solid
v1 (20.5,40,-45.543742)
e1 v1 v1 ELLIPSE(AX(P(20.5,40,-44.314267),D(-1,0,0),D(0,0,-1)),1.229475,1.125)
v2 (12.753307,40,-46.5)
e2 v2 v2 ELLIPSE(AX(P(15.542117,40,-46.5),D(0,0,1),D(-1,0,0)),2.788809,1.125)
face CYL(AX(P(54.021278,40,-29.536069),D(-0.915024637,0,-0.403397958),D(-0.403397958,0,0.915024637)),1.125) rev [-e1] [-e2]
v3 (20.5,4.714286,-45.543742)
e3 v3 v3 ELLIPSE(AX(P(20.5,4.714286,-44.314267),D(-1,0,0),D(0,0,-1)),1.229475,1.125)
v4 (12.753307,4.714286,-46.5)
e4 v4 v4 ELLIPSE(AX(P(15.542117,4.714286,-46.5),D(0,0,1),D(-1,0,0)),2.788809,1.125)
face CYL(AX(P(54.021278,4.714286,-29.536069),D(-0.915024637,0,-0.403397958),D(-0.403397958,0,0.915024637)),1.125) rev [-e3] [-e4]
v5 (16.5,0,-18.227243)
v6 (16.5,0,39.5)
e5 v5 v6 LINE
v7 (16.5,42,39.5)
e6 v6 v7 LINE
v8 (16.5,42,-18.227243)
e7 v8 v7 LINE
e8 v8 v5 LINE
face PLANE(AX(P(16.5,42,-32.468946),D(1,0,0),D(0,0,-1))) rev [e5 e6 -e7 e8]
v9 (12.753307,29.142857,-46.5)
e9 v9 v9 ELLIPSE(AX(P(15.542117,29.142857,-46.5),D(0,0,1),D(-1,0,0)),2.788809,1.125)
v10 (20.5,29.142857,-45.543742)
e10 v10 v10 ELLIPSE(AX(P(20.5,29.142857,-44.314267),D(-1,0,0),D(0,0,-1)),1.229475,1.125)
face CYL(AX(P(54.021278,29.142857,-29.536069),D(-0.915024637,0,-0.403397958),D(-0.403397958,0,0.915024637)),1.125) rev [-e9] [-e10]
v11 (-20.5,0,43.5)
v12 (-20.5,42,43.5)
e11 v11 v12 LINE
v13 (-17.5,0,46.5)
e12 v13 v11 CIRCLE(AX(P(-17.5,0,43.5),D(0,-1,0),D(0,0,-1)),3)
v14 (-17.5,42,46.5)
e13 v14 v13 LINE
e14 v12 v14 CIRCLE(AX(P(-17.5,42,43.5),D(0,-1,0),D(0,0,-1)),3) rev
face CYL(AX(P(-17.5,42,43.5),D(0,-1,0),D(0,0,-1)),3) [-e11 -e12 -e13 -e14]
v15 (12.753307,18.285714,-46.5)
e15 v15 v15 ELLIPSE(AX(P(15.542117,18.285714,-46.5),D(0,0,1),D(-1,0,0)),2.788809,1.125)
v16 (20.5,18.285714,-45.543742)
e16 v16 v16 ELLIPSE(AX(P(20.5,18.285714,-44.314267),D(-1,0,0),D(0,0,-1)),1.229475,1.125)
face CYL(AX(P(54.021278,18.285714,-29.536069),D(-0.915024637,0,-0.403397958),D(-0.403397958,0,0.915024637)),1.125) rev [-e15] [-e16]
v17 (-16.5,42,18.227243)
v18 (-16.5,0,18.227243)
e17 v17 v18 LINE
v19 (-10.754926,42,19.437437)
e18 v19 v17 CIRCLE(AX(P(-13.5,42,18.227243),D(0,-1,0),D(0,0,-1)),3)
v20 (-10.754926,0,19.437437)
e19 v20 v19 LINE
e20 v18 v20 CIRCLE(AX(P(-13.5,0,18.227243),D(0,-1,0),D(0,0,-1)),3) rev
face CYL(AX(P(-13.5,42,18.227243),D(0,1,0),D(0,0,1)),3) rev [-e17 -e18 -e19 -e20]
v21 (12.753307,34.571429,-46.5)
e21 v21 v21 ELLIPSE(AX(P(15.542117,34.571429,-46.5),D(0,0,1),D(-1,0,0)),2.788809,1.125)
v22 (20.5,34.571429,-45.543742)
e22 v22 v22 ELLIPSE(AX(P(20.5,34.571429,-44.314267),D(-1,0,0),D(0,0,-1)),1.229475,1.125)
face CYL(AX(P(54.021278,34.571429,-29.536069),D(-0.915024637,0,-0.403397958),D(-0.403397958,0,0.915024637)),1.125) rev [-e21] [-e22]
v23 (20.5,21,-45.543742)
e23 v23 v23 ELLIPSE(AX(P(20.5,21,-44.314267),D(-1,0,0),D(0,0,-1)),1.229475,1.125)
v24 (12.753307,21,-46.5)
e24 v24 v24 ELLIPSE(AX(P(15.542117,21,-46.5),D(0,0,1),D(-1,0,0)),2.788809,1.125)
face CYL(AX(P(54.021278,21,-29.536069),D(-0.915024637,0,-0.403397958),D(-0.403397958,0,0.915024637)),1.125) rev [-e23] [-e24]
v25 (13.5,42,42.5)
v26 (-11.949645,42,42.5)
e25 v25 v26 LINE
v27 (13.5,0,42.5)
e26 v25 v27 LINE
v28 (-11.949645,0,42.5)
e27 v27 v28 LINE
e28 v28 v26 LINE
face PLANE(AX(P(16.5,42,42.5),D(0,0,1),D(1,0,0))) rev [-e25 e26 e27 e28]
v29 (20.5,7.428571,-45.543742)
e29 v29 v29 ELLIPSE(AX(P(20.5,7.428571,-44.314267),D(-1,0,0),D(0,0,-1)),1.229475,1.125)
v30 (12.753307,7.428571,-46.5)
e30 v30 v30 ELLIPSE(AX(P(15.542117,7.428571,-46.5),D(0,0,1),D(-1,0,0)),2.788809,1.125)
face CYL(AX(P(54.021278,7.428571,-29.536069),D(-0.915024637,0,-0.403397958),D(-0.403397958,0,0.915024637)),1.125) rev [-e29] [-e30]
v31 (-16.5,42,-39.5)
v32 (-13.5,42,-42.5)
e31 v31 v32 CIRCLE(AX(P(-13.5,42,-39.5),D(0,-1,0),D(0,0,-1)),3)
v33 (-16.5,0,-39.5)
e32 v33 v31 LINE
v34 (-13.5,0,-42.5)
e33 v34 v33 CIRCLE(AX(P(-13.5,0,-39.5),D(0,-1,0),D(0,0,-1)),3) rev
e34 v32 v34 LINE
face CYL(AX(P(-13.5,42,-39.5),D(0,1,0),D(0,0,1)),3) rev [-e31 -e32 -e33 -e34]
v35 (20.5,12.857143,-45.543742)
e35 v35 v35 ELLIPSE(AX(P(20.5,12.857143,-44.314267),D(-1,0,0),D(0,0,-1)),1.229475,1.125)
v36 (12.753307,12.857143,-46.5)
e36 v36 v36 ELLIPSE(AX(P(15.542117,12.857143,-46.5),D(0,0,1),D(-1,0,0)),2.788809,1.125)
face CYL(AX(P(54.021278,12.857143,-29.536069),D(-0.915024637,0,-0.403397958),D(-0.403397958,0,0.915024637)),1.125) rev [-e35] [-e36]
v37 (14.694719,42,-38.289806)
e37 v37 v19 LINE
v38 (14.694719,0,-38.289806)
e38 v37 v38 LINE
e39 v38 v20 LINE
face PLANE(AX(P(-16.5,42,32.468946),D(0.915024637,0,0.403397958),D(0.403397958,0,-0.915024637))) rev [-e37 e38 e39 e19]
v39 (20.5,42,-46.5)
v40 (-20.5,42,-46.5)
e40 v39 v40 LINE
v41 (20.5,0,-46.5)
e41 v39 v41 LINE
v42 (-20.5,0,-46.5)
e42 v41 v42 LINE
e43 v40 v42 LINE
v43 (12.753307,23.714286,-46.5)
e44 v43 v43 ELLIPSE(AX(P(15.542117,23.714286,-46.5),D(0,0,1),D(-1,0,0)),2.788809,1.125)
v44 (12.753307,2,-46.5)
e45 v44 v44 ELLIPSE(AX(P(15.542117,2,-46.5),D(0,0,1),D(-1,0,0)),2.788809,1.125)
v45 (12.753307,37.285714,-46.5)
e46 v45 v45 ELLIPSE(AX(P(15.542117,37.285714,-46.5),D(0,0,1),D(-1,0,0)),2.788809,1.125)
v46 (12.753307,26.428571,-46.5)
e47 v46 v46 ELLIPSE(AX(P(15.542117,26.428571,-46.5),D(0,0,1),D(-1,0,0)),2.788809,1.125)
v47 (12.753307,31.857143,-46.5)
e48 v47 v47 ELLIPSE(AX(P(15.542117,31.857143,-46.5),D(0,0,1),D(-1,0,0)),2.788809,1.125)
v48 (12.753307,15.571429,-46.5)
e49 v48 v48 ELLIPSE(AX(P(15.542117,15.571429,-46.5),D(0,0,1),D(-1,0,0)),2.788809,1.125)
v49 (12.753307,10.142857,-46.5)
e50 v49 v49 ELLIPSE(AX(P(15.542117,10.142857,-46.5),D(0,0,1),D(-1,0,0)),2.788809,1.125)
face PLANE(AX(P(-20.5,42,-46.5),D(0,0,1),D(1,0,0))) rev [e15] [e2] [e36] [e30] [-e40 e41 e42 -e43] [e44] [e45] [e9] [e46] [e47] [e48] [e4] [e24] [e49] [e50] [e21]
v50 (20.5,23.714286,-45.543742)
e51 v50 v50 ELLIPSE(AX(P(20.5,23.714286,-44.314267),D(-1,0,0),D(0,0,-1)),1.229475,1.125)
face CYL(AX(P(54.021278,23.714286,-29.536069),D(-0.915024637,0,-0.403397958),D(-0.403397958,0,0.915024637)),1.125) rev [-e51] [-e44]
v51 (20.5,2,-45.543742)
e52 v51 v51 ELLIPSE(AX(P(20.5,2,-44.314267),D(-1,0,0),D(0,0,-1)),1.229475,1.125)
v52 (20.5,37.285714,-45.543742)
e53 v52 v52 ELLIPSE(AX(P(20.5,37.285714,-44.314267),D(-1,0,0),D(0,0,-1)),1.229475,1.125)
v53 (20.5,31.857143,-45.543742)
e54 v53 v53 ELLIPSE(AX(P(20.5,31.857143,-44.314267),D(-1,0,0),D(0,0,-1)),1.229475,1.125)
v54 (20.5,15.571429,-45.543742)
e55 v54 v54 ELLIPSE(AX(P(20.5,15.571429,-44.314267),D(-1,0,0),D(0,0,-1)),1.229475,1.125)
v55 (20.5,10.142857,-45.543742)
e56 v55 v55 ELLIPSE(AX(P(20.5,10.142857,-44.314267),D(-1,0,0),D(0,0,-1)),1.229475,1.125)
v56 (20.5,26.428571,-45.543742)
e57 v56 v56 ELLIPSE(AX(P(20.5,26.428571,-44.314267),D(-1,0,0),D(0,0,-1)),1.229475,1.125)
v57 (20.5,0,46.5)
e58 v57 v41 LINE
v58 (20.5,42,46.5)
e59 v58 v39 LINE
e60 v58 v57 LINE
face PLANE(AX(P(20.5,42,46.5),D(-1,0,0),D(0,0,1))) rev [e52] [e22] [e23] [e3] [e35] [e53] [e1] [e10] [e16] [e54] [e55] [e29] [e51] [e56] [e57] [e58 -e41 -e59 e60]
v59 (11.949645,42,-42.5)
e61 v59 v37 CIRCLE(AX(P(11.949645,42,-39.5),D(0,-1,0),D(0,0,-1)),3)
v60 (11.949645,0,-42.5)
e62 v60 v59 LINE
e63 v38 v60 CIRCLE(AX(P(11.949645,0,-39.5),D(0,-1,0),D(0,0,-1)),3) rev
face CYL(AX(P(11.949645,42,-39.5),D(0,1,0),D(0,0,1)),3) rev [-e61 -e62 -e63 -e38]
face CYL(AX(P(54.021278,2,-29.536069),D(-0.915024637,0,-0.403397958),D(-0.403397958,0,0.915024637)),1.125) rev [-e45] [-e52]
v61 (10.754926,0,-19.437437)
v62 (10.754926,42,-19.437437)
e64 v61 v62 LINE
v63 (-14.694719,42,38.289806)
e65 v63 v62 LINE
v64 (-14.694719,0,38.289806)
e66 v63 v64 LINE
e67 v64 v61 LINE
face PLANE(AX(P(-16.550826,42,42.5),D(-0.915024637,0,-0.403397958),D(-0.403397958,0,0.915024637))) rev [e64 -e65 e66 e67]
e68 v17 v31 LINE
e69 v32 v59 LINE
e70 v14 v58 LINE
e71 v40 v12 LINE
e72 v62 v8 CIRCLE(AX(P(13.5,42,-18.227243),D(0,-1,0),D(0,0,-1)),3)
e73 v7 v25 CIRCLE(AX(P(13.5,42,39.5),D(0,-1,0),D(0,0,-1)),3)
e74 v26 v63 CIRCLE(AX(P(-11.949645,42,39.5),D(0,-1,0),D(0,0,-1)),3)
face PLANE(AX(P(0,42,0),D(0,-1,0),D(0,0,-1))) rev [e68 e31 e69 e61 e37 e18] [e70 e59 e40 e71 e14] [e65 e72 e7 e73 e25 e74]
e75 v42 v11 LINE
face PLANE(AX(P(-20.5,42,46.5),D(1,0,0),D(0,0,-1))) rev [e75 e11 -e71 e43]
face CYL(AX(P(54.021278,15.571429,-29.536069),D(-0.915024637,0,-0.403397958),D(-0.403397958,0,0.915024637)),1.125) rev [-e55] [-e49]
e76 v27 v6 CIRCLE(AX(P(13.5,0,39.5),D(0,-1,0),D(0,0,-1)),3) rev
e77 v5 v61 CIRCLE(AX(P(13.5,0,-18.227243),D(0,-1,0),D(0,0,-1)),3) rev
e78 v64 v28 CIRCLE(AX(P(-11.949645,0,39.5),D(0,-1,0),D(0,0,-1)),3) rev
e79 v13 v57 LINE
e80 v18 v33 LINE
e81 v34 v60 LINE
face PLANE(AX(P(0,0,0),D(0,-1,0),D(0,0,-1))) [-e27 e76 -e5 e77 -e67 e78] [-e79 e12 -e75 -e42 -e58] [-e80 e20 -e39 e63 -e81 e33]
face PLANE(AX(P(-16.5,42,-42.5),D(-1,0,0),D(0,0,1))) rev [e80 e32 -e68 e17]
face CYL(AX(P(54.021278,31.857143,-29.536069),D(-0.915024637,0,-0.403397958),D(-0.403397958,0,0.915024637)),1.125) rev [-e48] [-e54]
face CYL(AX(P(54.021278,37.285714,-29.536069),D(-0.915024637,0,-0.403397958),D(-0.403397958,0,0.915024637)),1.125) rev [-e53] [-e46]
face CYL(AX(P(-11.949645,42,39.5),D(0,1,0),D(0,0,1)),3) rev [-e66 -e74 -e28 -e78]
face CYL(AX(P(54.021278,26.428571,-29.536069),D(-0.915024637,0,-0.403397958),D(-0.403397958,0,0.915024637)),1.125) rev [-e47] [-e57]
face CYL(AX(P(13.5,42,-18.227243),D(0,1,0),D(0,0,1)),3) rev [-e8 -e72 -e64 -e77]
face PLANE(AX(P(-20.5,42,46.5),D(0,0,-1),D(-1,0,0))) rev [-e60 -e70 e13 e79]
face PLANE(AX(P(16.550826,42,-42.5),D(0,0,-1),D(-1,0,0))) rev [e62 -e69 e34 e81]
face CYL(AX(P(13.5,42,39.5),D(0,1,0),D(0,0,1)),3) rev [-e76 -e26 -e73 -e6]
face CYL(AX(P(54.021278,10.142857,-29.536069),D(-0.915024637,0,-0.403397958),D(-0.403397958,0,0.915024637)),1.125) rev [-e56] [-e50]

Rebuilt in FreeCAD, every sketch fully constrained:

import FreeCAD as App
import Part
import Sketcher

V = App.Vector
Q = App.Units.Quantity


def edges_at(feature, points):
    """Names of the edges that pass closest to the given points."""
    edges = feature.Shape.Edges
    near = lambda p: min(range(len(edges)), key=lambda i: edges[i].distToShape(Part.Vertex(*p))[0])
    return sorted({f"Edge{near(p) + 1}" for p in points})

doc = App.newDocument("Part")
body = doc.addObject("PartDesign::Body", "Body")

# Sketch on XZ plane
sketch1 = doc.addObject("Sketcher::SketchObject", "Sketch")
body.addObject(sketch1)
sketch1.AttachmentSupport = (doc.XZ_Plane, [""])
sketch1.MapMode = "FlatFace"
sketch1.addGeometry([
    Part.LineSegment(V(-20.5, -46.5, 0), V(-20.5, 46.5, 0)),
    Part.LineSegment(V(-20.5, 46.5, 0), V(20.5, 46.5, 0)),
    Part.LineSegment(V(20.5, 46.5, 0), V(20.5, -46.5, 0)),
    Part.LineSegment(V(20.5, -46.5, 0), V(-20.5, -46.5, 0)),
], False)
sketch1.addConstraint([
    Sketcher.Constraint("Coincident", 0, 2, 1, 1),
    Sketcher.Constraint("Coincident", 1, 2, 2, 1),
    Sketcher.Constraint("Coincident", 2, 2, 3, 1),
    Sketcher.Constraint("Coincident", 3, 2, 0, 1),
    Sketcher.Constraint("Vertical", 0),
    Sketcher.Constraint("Horizontal", 1),
    Sketcher.Constraint("Vertical", 2),
    Sketcher.Constraint("Horizontal", 3),
    Sketcher.Constraint("Symmetric", 0, 2, 2, 2, -1, 1),
    Sketcher.Constraint("DistanceX", 1, 1, 1, 2, Q("41 mm")),
    Sketcher.Constraint("DistanceY", 0, 1, 0, 2, Q("93 mm")),
])
pad1 = doc.addObject("PartDesign::Pad", "Pad")
body.addObject(pad1)
pad1.Profile = sketch1
pad1.Length = 42
pad1.Reversed = True

# Sketch on an angled plane
sketch2 = doc.addObject("Sketcher::SketchObject", "Sketch001")
body.addObject(sketch2)
sketch2.Placement = App.Placement(V(0, 0, 0), App.Rotation(V(-0.403397958, 0, 0.915024637), V(0, 0.999999999, 0), V(-0.915024637, 0, -0.403397958), "ZXY"))
sketch2.addGeometry([
    Part.Circle(V(-48.818304, 40, 0), V(0, 0, 1), 1.125),  # 0
    Part.Circle(V(-48.818304, 37.285714, 0), V(0, 0, 1), 1.125),  # 1
    Part.Circle(V(-48.818304, 34.571428, 0), V(0, 0, 1), 1.125),  # 2
    Part.Circle(V(-48.818304, 31.857143, 0), V(0, 0, 1), 1.125),  # 3
    Part.Circle(V(-48.818304, 29.142857, 0), V(0, 0, 1), 1.125),  # 4
    Part.Circle(V(-48.818304, 26.428571, 0), V(0, 0, 1), 1.125),  # 5
    Part.Circle(V(-48.818304, 23.714286, 0), V(0, 0, 1), 1.125),  # 6
    Part.Circle(V(-48.818304, 21, 0), V(0, 0, 1), 1.125),  # 7
    Part.Circle(V(-48.818304, 18.285714, 0), V(0, 0, 1), 1.125),  # 8
    Part.Circle(V(-48.818304, 15.571429, 0), V(0, 0, 1), 1.125),  # 9
    Part.Circle(V(-48.818304, 12.857143, 0), V(0, 0, 1), 1.125),  # 10
    Part.Circle(V(-48.818304, 10.142857, 0), V(0, 0, 1), 1.125),  # 11
    Part.Circle(V(-48.818304, 7.428571, 0), V(0, 0, 1), 1.125),  # 12
    Part.Circle(V(-48.818304, 4.714286, 0), V(0, 0, 1), 1.125),  # 13
    Part.Circle(V(-48.818304, 2, 0), V(0, 0, 1), 1.125),  # 14
], False)
sketch2.addConstraint([
    Sketcher.Constraint("Equal", 0, 1),
    Sketcher.Constraint("Equal", 1, 2),
    Sketcher.Constraint("Equal", 2, 3),
    Sketcher.Constraint("Equal", 3, 4),
    Sketcher.Constraint("Equal", 4, 5),
    Sketcher.Constraint("Equal", 5, 6),
    Sketcher.Constraint("Equal", 6, 7),
    Sketcher.Constraint("Equal", 7, 8),
    Sketcher.Constraint("Equal", 8, 9),
    Sketcher.Constraint("Equal", 9, 10),
    Sketcher.Constraint("Equal", 10, 11),
    Sketcher.Constraint("Equal", 11, 12),
    Sketcher.Constraint("Equal", 12, 13),
    Sketcher.Constraint("Equal", 13, 14),
    Sketcher.Constraint("Vertical", 0, 3, 1, 3),
    Sketcher.Constraint("Vertical", 1, 3, 2, 3),
    Sketcher.Constraint("Vertical", 2, 3, 3, 3),
    Sketcher.Constraint("Vertical", 3, 3, 4, 3),
    Sketcher.Constraint("Vertical", 4, 3, 5, 3),
    Sketcher.Constraint("Vertical", 5, 3, 6, 3),
    Sketcher.Constraint("Vertical", 6, 3, 7, 3),
    Sketcher.Constraint("Vertical", 7, 3, 8, 3),
    Sketcher.Constraint("Vertical", 8, 3, 9, 3),
    Sketcher.Constraint("Vertical", 9, 3, 10, 3),
    Sketcher.Constraint("Vertical", 10, 3, 11, 3),
    Sketcher.Constraint("Vertical", 11, 3, 12, 3),
    Sketcher.Constraint("Vertical", 12, 3, 13, 3),
    Sketcher.Constraint("Vertical", 13, 3, 14, 3),
    Sketcher.Constraint("Diameter", 0, Q("2.25 mm")),
    Sketcher.Constraint("DistanceY", -1, 1, 0, 3, Q("40 mm")),
    Sketcher.Constraint("DistanceY", -1, 1, 7, 3, Q("21 mm")),
    Sketcher.Constraint("DistanceY", -1, 1, 14, 3, Q("2 mm")),
    Sketcher.Constraint("DistanceY", -1, 1, 2, 3, Q("34.571428 mm")),
    Sketcher.Constraint("DistanceY", -1, 1, 5, 3, Q("26.428571 mm")),
    Sketcher.Constraint("DistanceY", -1, 1, 9, 3, Q("15.571429 mm")),
    Sketcher.Constraint("DistanceY", -1, 1, 12, 3, Q("7.428571 mm")),
    Sketcher.Constraint("DistanceY", 3, 3, 1, 3, Q("5.428571 mm")),
    Sketcher.Constraint("DistanceY", 4, 3, 2, 3, Q("5.428571 mm")),
    Sketcher.Constraint("DistanceY", 5, 3, 3, 3, Q("5.428571 mm")),
    Sketcher.Constraint("DistanceY", 6, 3, 4, 3, Q("5.428571 mm")),
    Sketcher.Constraint("DistanceY", 8, 3, 6, 3, Q("5.428571 mm")),
    Sketcher.Constraint("DistanceY", 10, 3, 8, 3, Q("5.428571 mm")),
    Sketcher.Constraint("DistanceY", 11, 3, 9, 3, Q("5.428571 mm")),
    Sketcher.Constraint("DistanceY", 13, 3, 11, 3, Q("5.428571 mm")),
    Sketcher.Constraint("DistanceX", 0, 3, -1, 1, Q("48.818304 mm")),
])
pocket1 = doc.addObject("PartDesign::Pocket", "Pocket")
body.addObject(pocket1)
pocket1.Profile = sketch2
pocket1.Type = "ThroughAll"
pocket1.Midplane = True

# Sketch on XZ plane
sketch3 = doc.addObject("Sketcher::SketchObject", "Sketch002")
body.addObject(sketch3)
sketch3.AttachmentSupport = (doc.XZ_Plane, [""])
sketch3.MapMode = "FlatFace"
sketch3.addGeometry([
    Part.LineSegment(V(16.5, 42.5, 0), V(-16.550826, 42.5, 0)),  # 0
    Part.LineSegment(V(-16.550826, 42.5, 0), V(16.5, -32.468946, 0)),  # 1
    Part.LineSegment(V(16.5, -32.468946, 0), V(16.5, 42.5, 0)),  # 2
    Part.LineSegment(V(16.550826, -42.5, 0), V(-16.5, 32.468946, 0)),  # 3
    Part.LineSegment(V(-16.5, 32.468946, 0), V(-16.5, -42.5, 0)),  # 4
    Part.LineSegment(V(-16.5, -42.5, 0), V(16.550826, -42.5, 0)),  # 5
], False)
sketch3.addConstraint([
    Sketcher.Constraint("Coincident", 0, 2, 1, 1),
    Sketcher.Constraint("Coincident", 1, 2, 2, 1),
    Sketcher.Constraint("Coincident", 2, 2, 0, 1),
    Sketcher.Constraint("Coincident", 3, 2, 4, 1),
    Sketcher.Constraint("Coincident", 4, 2, 5, 1),
    Sketcher.Constraint("Coincident", 5, 2, 3, 1),
    Sketcher.Constraint("Horizontal", 0),
    Sketcher.Constraint("Vertical", 2),
    Sketcher.Constraint("Vertical", 4),
    Sketcher.Constraint("Horizontal", 5),
    Sketcher.Constraint("Symmetric", 1, 2, 3, 2, -1, 1),
    Sketcher.Constraint("Symmetric", 0, 2, 5, 2, -1, 1),
    Sketcher.Constraint("DistanceX", 3, 2, 2, 2, Q("33 mm")),
    Sketcher.Constraint("DistanceY", 4, 2, 0, 2, Q("85 mm")),
    Sketcher.Constraint("Distance", 1, Q("81.931068 mm")),
    Sketcher.Constraint("DistanceX", 0, 2, 0, 1, Q("33.050826 mm")),
])
pocket2 = doc.addObject("PartDesign::Pocket", "Pocket001")
body.addObject(pocket2)
pocket2.Profile = sketch3
pocket2.Type = "ThroughAll"
doc.recompute()

fillet = doc.addObject("PartDesign::Fillet", "Fillet")
body.addObject(fillet)
fillet.Base = (pocket2, edges_at(pocket2, [
    (-16.5, 21, -42.5),
    (-16.5, 21, 32.469),
    (16.551, 21, -42.5),
    (16.5, 21, 42.5),
    (16.5, 21, -32.469),
    (-16.551, 21, 42.5),
]))
fillet.Radius = 3
doc.recompute()

fillet2 = doc.addObject("PartDesign::Fillet", "Fillet001")
body.addObject(fillet2)
fillet2.Base = (fillet, edges_at(fillet, [(-20.5, 21, 46.5)]))
fillet2.Radius = 3

doc.recompute()
